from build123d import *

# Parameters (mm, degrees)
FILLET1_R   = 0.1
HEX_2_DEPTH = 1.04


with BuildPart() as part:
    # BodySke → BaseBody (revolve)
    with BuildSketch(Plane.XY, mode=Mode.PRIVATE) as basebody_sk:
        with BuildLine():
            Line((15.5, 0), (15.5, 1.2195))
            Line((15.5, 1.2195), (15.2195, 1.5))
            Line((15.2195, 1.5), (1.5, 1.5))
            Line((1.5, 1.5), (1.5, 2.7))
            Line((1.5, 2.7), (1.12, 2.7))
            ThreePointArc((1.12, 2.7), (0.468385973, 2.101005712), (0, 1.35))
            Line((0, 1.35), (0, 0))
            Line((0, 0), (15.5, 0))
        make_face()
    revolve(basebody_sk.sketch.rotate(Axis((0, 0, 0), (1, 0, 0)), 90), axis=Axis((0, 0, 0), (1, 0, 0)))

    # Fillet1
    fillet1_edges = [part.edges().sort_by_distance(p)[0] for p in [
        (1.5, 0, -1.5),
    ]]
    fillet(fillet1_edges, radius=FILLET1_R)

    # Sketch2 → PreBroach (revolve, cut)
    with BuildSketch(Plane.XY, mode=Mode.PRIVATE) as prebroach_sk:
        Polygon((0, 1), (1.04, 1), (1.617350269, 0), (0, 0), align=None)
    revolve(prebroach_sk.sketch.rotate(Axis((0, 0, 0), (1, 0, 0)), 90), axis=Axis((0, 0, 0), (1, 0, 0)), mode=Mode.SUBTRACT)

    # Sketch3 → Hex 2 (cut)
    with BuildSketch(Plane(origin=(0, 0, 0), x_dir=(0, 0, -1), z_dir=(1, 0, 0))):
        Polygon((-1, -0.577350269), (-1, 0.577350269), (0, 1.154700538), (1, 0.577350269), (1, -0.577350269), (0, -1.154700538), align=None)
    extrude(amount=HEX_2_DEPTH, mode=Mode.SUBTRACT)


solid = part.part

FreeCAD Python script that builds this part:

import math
import FreeCAD as App
import Part
import Sketcher
Q = App.Units.Quantity


def edges_at(feature, points):
    """Names of the edges that pass closest to the given points."""
    edges = feature.Shape.Edges
    near = lambda p: min(range(len(edges)), key=lambda i: edges[i].distToShape(Part.Vertex(*p))[0])
    return sorted({f"Edge{near(p) + 1}" for p in points})

doc = App.newDocument("Part")
params = doc.addObject("Spreadsheet::Sheet", "Params")
for row, (alias, value) in enumerate([
    ("sketch1_width", "15.5 mm"),
    ("sketch1_height", "1.2 mm"),
    ("sketch1_width2", "0.38 mm"),
    ("sketch1_height2", "1.35 mm"),
    ("revolution_angle", "360 deg"),
    ("fillet_radius", "0.1 mm"),
    ("sketch2_height", "1 mm"),
    ("sketch2_width", "1.04 mm"),
    ("groove_angle", "360 deg"),
    ("pocket1_length", "1.04 mm"),
], start=1):
    params.set(f"A{row}", alias)
    params.set(f"B{row}", "=" + value)
    params.setAlias(f"B{row}", alias)

body = doc.addObject("PartDesign::Body", "Body")

# Sketch on XY plane
sketch1 = body.newObject("Sketcher::SketchObject", "Sketch")
sketch1.AttachmentSupport = (doc.getObject("XY_Plane"), [""])
sketch1.MapMode = "FlatFace"
sketch1.addGeometry(Part.LineSegment(App.Vector(15.5, 0, 0), App.Vector(15.5, 1.22, 0)), False)
sketch1.addGeometry(Part.LineSegment(App.Vector(15.5, 1.22, 0), App.Vector(15.22, 1.5, 0)), False)
sketch1.addGeometry(Part.LineSegment(App.Vector(15.22, 1.5, 0), App.Vector(1.5, 1.5, 0)), False)
sketch1.addGeometry(Part.LineSegment(App.Vector(1.5, 1.5, 0), App.Vector(1.5, 2.7, 0)), False)
sketch1.addGeometry(Part.LineSegment(App.Vector(1.5, 2.7, 0), App.Vector(1.12, 2.7, 0)), False)
sketch1.addGeometry(Part.ArcOfCircle(Part.Circle(App.Vector(3, 0, 0), App.Vector(0, 0, 1), 3.29), math.radians(125), math.radians(156)), False)
sketch1.addGeometry(Part.LineSegment(App.Vector(0, 1.35, 0), App.Vector(0, 0, 0)), False)
sketch1.addGeometry(Part.LineSegment(App.Vector(0, 0, 0), App.Vector(15.5, 0, 0)), False)
sketch1.addConstraint(Sketcher.Constraint("Coincident", 0, 2, 1, 1))
sketch1.addConstraint(Sketcher.Constraint("Coincident", 1, 2, 2, 1))
sketch1.addConstraint(Sketcher.Constraint("Coincident", 2, 2, 3, 1))
sketch1.addConstraint(Sketcher.Constraint("Coincident", 3, 2, 4, 1))
sketch1.addConstraint(Sketcher.Constraint("Coincident", 4, 2, 5, 1))
sketch1.addConstraint(Sketcher.Constraint("Coincident", 5, 2, 6, 1))
sketch1.addConstraint(Sketcher.Constraint("Coincident", 6, 2, 7, 1))
sketch1.addConstraint(Sketcher.Constraint("Coincident", 7, 2, 0, 1))
sketch1.addConstraint(Sketcher.Constraint("Vertical", 0))
sketch1.addConstraint(Sketcher.Constraint("Horizontal", 2))
sketch1.addConstraint(Sketcher.Constraint("Vertical", 3))
sketch1.addConstraint(Sketcher.Constraint("Horizontal", 4))
sketch1.addConstraint(Sketcher.Constraint("Vertical", 6))
sketch1.addConstraint(Sketcher.Constraint("Horizontal", 7))
sketch1.addConstraint(Sketcher.Constraint("Coincident", 6, 2, -1, 1))
sketch1.addConstraint(Sketcher.Constraint("PointOnObject", 5, 3, -1))
sketch1.addConstraint(Sketcher.Constraint("Angle", 1, Q("135 deg")))
sketch1.addConstraint(Sketcher.Constraint("DistanceX", 7, 1, 7, 2, Q("15.5 mm")))
sketch1.addConstraint(Sketcher.Constraint("DistanceY", 3, 1, 3, 2, Q("1.2 mm")))
sketch1.addConstraint(Sketcher.Constraint("DistanceX", 2, 2, 0, 2, Q("14 mm")))
sketch1.addConstraint(Sketcher.Constraint("DistanceX", 4, 2, 4, 1, Q("0.38 mm")))
sketch1.addConstraint(Sketcher.Constraint("DistanceY", 6, 2, 6, 1, Q("1.35 mm")))
sketch1.addConstraint(Sketcher.Constraint("DistanceY", -1, 1, 1, 2, Q("1.5 mm")))
sketch1.addConstraint(Sketcher.Constraint("DistanceX", 2, 2, 2, 1, Q("13.7195 mm")))
sketch1.setExpression("Constraints[17]", "Params.sketch1_width")
sketch1.setExpression("Constraints[18]", "Params.sketch1_height")
sketch1.setExpression("Constraints[20]", "Params.sketch1_width2")
sketch1.setExpression("Constraints[21]", "Params.sketch1_height2")
revolution = body.newObject("PartDesign::Revolution", "Revolution")
revolution.Profile = sketch1
revolution.ReferenceAxis = (sketch1, ["H_Axis"])
revolution.setExpression("Angle", "Params.revolution_angle")
doc.recompute()

fillet = body.newObject("PartDesign::Fillet", "Fillet")
fillet.Base = (revolution, edges_at(revolution, [(1.5, 0, -1.5)]))
fillet.setExpression("Radius", "Params.fillet_radius")

# Sketch on XY plane
sketch2 = body.newObject("Sketcher::SketchObject", "Sketch001")
sketch2.AttachmentSupport = (doc.getObject("XY_Plane"), [""])
sketch2.MapMode = "FlatFace"
sketch2.addGeometry(Part.LineSegment(App.Vector(1, 1, 0), App.Vector(0, 1, 0)), False)
sketch2.addGeometry(Part.LineSegment(App.Vector(0, 1, 0), App.Vector(0, 0, 0)), False)
sketch2.addGeometry(Part.LineSegment(App.Vector(0, 0, 0), App.Vector(1.6, 0, 0)), False)
sketch2.addGeometry(Part.LineSegment(App.Vector(1.6, 0, 0), App.Vector(1, 1, 0)), False)
sketch2.addConstraint(Sketcher.Constraint("Coincident", 0, 2, 1, 1))
sketch2.addConstraint(Sketcher.Constraint("Coincident", 1, 2, 2, 1))
sketch2.addConstraint(Sketcher.Constraint("Coincident", 2, 2, 3, 1))
sketch2.addConstraint(Sketcher.Constraint("Coincident", 3, 2, 0, 1))
sketch2.addConstraint(Sketcher.Constraint("Horizontal", 0))
sketch2.addConstraint(Sketcher.Constraint("Vertical", 1))
sketch2.addConstraint(Sketcher.Constraint("Horizontal", 2))
sketch2.addConstraint(Sketcher.Constraint("Coincident", 1, 2, -1, 1))
sketch2.addConstraint(Sketcher.Constraint("DistanceY", 1, 2, 1, 1, Q("1 mm")))
sketch2.addConstraint(Sketcher.Constraint("Angle", 3, Q("120 deg")))
sketch2.addConstraint(Sketcher.Constraint("DistanceX", 0, 2, 0, 1, Q("1.04 mm")))
sketch2.setExpression("Constraints[8]", "Params.sketch2_height")
sketch2.setExpression("Constraints[10]", "Params.sketch2_width")
groove = body.newObject("PartDesign::Groove", "Groove")
groove.Profile = sketch2
groove.ReferenceAxis = (sketch2, ["H_Axis"])
groove.setExpression("Angle", "Params.groove_angle")

# Sketch on YZ plane
sketch3 = body.newObject("Sketcher::SketchObject", "Sketch002")
sketch3.AttachmentSupport = (doc.getObject("YZ_Plane"), [""])
sketch3.MapMode = "FlatFace"
sketch3.addGeometry(Part.LineSegment(App.Vector(0.6, 1, 0), App.Vector(-0.6, 1, 0)), False)
sketch3.addGeometry(Part.LineSegment(App.Vector(-0.6, 1, 0), App.Vector(-1.2, 0, 0)), False)
sketch3.addGeometry(Part.LineSegment(App.Vector(-1.2, 0, 0), App.Vector(-0.6, -1, 0)), False)
sketch3.addGeometry(Part.LineSegment(App.Vector(-0.6, -1, 0), App.Vector(0.6, -1, 0)), False)
sketch3.addGeometry(Part.LineSegment(App.Vector(0.6, -1, 0), App.Vector(1.2, 0, 0)), False)
sketch3.addGeometry(Part.LineSegment(App.Vector(1.2, 0, 0), App.Vector(0.6, 1, 0)), False)
sketch3.addConstraint(Sketcher.Constraint("Coincident", 0, 2, 1, 1))
sketch3.addConstraint(Sketcher.Constraint("Coincident", 1, 2, 2, 1))
sketch3.addConstraint(Sketcher.Constraint("Coincident", 2, 2, 3, 1))
sketch3.addConstraint(Sketcher.Constraint("Coincident", 3, 2, 4, 1))
sketch3.addConstraint(Sketcher.Constraint("Coincident", 4, 2, 5, 1))
sketch3.addConstraint(Sketcher.Constraint("Coincident", 5, 2, 0, 1))
sketch3.addConstraint(Sketcher.Constraint("Horizontal", 0))
sketch3.addConstraint(Sketcher.Constraint("Horizontal", 3))
sketch3.addConstraint(Sketcher.Constraint("Symmetric", 0, 2, 3, 2, -1, 1))
sketch3.addConstraint(Sketcher.Constraint("Symmetric", 1, 2, 4, 2, -1, 1))
sketch3.addConstraint(Sketcher.Constraint("PointOnObject", 1, 2, -1))
sketch3.addConstraint(Sketcher.Constraint("Parallel", 2, 5))
sketch3.addConstraint(Sketcher.Constraint("Vertical", 0, 2, 2, 2))
sketch3.addConstraint(Sketcher.Constraint("Angle", 1, Q("-120 deg")))
sketch3.addConstraint(Sketcher.Constraint("DistanceY", -1, 1, 0, 2, Q("1 mm")))
sketch3.addConstraint(Sketcher.Constraint("DistanceX", 0, 2, 0, 1, Q("1.154701 mm")))
pocket1 = body.newObject("PartDesign::Pocket", "Pocket")
pocket1.Profile = sketch3
pocket1.setExpression("Length", "Params.pocket1_length")
pocket1.Reversed = True

doc.recompute()
